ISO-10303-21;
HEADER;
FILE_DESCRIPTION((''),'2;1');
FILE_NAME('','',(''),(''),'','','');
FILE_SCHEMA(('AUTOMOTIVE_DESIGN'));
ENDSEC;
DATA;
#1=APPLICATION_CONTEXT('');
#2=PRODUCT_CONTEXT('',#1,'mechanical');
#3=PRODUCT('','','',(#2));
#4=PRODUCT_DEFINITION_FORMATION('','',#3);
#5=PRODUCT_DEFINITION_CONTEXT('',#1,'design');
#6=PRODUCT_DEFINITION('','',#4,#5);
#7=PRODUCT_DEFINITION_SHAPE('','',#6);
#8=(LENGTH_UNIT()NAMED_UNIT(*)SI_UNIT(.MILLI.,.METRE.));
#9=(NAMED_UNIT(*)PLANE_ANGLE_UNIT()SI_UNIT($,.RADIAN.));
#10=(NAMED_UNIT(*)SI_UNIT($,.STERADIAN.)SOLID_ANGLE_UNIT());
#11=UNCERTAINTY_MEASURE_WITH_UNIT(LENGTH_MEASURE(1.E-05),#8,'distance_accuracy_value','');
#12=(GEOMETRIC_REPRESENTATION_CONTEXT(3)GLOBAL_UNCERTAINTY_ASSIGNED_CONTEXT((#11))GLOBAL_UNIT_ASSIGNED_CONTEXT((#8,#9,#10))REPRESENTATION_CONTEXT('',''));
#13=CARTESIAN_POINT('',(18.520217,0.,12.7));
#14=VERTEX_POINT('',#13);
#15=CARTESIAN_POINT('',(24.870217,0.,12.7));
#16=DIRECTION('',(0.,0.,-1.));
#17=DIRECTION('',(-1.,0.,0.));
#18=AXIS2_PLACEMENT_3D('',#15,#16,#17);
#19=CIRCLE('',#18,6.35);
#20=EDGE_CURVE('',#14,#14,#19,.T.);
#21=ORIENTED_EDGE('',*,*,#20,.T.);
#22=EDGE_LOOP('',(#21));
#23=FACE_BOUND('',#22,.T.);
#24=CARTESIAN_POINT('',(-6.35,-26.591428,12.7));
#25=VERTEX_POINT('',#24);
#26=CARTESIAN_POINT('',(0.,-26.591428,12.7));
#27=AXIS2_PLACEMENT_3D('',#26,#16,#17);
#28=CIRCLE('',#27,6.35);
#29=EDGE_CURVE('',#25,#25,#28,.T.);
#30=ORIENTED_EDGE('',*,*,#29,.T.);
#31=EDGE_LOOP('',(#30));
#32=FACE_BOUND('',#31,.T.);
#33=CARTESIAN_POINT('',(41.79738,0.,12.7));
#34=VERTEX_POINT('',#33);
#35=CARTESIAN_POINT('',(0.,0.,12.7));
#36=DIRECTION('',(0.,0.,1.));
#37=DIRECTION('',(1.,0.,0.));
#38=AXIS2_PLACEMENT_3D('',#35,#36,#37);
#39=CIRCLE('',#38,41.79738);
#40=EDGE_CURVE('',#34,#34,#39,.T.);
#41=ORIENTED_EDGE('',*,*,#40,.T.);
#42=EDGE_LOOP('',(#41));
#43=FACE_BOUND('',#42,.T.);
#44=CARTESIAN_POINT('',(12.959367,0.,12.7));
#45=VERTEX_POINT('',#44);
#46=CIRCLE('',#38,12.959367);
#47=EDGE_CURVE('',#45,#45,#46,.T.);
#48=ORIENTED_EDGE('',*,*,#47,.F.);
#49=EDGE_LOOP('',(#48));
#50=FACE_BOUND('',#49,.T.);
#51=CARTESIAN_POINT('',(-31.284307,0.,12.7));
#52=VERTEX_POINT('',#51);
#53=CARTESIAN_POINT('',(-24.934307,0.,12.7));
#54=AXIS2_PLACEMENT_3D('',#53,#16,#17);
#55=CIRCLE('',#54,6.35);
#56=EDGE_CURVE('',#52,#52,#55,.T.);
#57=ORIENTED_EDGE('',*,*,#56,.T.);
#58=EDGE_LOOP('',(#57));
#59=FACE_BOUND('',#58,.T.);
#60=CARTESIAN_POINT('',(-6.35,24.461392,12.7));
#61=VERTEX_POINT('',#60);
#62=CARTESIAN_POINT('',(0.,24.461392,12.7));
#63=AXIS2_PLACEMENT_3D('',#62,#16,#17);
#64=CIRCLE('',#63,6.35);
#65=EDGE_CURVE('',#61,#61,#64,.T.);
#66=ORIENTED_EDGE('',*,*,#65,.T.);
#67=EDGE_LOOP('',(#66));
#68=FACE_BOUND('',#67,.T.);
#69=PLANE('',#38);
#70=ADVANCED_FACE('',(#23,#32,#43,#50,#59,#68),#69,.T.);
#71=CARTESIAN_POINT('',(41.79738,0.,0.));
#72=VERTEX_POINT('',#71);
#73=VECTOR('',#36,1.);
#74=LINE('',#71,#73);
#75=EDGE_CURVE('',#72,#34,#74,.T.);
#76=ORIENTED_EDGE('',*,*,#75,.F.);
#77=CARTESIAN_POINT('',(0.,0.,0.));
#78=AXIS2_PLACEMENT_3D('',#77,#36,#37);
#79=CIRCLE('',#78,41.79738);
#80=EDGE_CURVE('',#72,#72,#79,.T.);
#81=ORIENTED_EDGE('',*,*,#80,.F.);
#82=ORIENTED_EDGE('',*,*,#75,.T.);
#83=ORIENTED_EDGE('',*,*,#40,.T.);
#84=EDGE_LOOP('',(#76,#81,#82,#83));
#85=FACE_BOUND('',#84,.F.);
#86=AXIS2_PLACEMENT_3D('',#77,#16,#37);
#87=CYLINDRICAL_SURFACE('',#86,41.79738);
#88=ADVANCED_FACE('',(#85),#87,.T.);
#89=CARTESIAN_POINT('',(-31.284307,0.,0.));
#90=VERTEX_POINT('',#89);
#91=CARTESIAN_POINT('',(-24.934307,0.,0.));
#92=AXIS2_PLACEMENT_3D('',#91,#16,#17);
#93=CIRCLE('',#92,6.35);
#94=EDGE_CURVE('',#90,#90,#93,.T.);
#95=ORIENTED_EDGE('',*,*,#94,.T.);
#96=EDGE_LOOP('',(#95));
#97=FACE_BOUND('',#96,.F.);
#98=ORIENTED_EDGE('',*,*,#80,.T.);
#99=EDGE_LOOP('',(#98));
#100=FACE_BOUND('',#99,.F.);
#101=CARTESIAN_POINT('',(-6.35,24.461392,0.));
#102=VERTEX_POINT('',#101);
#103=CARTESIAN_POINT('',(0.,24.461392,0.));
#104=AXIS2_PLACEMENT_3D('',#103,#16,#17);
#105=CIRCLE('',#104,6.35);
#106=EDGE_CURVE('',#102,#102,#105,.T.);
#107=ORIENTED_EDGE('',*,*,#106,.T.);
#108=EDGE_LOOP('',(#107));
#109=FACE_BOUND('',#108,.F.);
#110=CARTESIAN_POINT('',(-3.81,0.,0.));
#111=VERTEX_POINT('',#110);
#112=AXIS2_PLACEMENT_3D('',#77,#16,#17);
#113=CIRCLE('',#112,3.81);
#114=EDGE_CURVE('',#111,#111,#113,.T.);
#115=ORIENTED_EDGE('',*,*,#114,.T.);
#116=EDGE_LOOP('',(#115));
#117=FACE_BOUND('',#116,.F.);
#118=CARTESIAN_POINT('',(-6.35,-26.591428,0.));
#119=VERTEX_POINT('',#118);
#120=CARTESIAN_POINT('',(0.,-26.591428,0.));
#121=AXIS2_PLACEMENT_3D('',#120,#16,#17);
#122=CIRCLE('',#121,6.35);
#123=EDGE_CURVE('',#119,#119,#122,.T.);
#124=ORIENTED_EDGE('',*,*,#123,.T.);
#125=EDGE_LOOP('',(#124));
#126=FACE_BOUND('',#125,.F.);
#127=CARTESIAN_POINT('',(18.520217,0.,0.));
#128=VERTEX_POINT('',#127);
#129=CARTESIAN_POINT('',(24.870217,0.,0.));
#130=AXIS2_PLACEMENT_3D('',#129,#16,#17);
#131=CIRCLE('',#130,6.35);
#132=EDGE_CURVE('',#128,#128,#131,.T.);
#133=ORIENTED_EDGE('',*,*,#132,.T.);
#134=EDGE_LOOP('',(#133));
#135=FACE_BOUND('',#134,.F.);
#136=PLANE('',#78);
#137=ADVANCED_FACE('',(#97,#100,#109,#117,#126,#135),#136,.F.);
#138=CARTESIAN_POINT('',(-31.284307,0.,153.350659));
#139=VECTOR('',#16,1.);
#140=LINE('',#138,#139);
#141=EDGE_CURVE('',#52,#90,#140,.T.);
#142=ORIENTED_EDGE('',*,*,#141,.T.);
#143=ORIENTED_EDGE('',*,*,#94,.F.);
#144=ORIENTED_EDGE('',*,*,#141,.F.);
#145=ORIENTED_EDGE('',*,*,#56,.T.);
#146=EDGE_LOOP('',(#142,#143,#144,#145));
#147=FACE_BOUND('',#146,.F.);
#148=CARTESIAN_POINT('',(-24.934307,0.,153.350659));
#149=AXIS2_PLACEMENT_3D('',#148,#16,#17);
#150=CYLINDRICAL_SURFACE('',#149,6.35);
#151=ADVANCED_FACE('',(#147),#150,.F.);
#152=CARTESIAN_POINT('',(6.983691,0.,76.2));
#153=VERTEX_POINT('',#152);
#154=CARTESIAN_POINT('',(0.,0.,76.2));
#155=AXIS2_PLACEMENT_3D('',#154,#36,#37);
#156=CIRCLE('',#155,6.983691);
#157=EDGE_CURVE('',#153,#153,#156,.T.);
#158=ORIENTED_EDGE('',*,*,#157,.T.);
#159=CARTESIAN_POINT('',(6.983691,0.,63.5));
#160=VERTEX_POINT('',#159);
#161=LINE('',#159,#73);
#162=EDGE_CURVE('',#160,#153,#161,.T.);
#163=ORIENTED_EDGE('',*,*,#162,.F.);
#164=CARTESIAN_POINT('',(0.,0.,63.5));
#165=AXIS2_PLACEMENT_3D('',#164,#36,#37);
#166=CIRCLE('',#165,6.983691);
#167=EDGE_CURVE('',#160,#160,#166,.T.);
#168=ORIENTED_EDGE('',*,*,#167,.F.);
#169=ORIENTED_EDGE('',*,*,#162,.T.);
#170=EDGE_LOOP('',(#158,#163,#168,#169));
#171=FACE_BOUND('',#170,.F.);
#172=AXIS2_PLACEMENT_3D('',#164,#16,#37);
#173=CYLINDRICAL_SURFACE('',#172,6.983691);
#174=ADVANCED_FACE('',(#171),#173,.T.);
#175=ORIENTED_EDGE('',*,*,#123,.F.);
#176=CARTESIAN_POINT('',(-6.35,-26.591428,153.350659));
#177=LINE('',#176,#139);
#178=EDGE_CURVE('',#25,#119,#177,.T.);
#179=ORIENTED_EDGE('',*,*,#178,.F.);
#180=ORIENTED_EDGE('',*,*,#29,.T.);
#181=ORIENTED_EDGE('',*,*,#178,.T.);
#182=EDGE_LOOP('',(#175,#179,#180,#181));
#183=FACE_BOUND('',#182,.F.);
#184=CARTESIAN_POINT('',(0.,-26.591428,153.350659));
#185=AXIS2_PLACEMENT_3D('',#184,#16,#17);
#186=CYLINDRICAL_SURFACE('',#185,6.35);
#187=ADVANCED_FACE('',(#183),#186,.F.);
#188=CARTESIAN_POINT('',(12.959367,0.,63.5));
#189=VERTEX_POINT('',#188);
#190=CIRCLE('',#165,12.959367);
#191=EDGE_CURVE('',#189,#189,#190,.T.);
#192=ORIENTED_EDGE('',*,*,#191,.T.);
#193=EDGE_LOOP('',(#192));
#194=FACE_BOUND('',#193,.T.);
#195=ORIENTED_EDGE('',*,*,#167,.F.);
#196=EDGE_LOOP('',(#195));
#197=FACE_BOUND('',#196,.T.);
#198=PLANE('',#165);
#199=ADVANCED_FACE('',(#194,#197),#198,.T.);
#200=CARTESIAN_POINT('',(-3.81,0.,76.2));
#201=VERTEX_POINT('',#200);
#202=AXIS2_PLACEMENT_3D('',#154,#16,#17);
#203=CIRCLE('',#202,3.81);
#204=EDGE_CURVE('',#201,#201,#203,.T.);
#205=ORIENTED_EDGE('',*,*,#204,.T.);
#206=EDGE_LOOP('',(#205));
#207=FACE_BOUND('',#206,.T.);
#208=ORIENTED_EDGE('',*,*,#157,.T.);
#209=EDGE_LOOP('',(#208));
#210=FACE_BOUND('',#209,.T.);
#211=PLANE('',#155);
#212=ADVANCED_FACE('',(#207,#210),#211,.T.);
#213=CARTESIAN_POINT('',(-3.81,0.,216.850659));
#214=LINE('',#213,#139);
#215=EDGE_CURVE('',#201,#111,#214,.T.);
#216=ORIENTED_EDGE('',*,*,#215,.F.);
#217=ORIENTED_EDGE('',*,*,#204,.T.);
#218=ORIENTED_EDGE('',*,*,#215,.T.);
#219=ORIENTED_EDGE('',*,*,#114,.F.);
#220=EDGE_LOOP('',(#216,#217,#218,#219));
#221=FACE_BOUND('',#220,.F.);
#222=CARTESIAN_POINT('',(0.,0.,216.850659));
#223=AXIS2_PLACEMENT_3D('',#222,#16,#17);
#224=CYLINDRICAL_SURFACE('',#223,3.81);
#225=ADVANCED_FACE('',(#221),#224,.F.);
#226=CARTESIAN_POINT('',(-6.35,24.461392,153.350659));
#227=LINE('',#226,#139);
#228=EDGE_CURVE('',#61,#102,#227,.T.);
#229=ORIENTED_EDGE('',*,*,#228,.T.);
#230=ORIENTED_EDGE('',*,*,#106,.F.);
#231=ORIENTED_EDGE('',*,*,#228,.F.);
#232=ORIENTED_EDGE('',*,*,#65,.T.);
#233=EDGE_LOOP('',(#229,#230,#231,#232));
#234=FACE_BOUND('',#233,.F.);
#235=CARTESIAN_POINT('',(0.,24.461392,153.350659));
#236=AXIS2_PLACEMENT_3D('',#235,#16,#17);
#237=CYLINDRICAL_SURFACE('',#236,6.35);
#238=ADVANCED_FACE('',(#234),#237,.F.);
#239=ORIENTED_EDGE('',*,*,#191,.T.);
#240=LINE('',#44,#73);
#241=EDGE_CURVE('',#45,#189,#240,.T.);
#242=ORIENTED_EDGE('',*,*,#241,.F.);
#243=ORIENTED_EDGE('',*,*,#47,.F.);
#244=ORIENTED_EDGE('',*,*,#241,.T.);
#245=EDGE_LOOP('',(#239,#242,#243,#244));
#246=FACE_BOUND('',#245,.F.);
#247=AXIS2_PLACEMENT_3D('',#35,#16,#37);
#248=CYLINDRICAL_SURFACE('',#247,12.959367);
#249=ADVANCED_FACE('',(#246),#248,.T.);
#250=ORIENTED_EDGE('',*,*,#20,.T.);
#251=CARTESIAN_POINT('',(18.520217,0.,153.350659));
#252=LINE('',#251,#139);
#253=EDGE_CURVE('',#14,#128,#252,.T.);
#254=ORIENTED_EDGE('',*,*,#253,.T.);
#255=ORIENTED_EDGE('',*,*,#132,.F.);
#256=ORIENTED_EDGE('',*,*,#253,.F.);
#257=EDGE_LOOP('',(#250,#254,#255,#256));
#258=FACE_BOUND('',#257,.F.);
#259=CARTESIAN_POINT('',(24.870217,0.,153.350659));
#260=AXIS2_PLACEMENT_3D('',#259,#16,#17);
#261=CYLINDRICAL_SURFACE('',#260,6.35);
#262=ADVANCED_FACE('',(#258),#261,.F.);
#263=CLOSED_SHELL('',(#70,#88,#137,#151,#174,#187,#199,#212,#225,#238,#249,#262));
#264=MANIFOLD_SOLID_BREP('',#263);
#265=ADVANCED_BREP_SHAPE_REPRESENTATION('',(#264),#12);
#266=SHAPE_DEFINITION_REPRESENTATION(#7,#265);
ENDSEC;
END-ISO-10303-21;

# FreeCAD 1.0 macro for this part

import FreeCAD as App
import Part
import Sketcher
from FreeCAD import Vector
Q = App.Units.Quantity

doc = App.newDocument("Part")
body = doc.addObject("PartDesign::Body", "Body")

# Sketch on XY plane
sketch1 = doc.addObject("Sketcher::SketchObject", "Sketch")
body.addObject(sketch1)
sketch1.AttachmentSupport = (doc.XY_Plane, [""])
sketch1.MapMode = "FlatFace"
sketch1.addGeometry(Part.Circle(Vector(0, 0, 0), Vector(0, 0, 1), 42), False)
sketch1.addConstraint(Sketcher.Constraint("Coincident", 0, 3, -1, 1))
sketch1.addConstraint(Sketcher.Constraint("Diameter", 0, Q("83.59476 mm")))
pad1 = doc.addObject("PartDesign::Pad", "Pad")
body.addObject(pad1)
pad1.Profile = sketch1
pad1.Length = Q("0.5 in")

# Sketch on XY plane
sketch2 = doc.addObject("Sketcher::SketchObject", "Sketch001")
body.addObject(sketch2)
sketch2.AttachmentSupport = (doc.XY_Plane, [""])
sketch2.MapMode = "FlatFace"
sketch2.AttachmentOffset = App.Placement(Vector(0, 0, 0.5 * 25.4), App.Rotation())
sketch2.addGeometry(Part.Circle(Vector(0, 0, 0), Vector(0, 0, 1), 13), False)
sketch2.addConstraint(Sketcher.Constraint("Coincident", 0, 3, -1, 1))
sketch2.addConstraint(Sketcher.Constraint("Diameter", 0, Q("25.918734 mm")))
pad2 = doc.addObject("PartDesign::Pad", "Pad001")
body.addObject(pad2)
pad2.Profile = sketch2
pad2.Length = Q("2 in")

# Sketch on XY plane
sketch3 = doc.addObject("Sketcher::SketchObject", "Sketch002")
body.addObject(sketch3)
sketch3.AttachmentSupport = (doc.XY_Plane, [""])
sketch3.MapMode = "FlatFace"
sketch3.AttachmentOffset = App.Placement(Vector(0, 0, 2.5 * 25.4), App.Rotation())
sketch3.addGeometry(Part.Circle(Vector(0, 0, 0), Vector(0, 0, 1), 7), False)
sketch3.addConstraint(Sketcher.Constraint("Coincident", 0, 3, -1, 1))
sketch3.addConstraint(Sketcher.Constraint("Diameter", 0, Q("13.967382 mm")))
pad3 = doc.addObject("PartDesign::Pad", "Pad002")
body.addObject(pad3)
pad3.Profile = sketch3
pad3.Length = Q("0.5 in")

# Sketch on XY plane
sketch4 = doc.addObject("Sketcher::SketchObject", "Sketch003")
body.addObject(sketch4)
sketch4.AttachmentSupport = (doc.XY_Plane, [""])
sketch4.MapMode = "FlatFace"
sketch4.AttachmentOffset = App.Placement(Vector(0, 0, 3 * 25.4), App.Rotation())
sketch4.addGeometry(Part.Circle(Vector(0, 0, 0), Vector(0, 0, 1), 3.8), False)
sketch4.addConstraint(Sketcher.Constraint("Coincident", 0, 3, -1, 1))
sketch4.addConstraint(Sketcher.Constraint("Diameter", 0, Q("0.3 in")))
doc.recompute()
hole = doc.addObject("PartDesign::Hole", "Hole")
body.addObject(hole)
hole.Profile = sketch4
hole.ThreadType = "None"
hole.Diameter = Q("0.3 in")
hole.DepthType = "ThroughAll"

# Sketch on XY plane
sketch5 = doc.addObject("Sketcher::SketchObject", "Sketch004")
body.addObject(sketch5)
sketch5.AttachmentSupport = (doc.XY_Plane, [""])
sketch5.MapMode = "FlatFace"
sketch5.AttachmentOffset = App.Placement(Vector(0, 0, 0.5 * 25.4), App.Rotation())
sketch5.addGeometry(Part.Circle(Vector(0, -27, 0), Vector(0, 0, 1), 6), False)
sketch5.addGeometry(Part.Circle(Vector(-25, 0, 0), Vector(0, 0, 1), 6), False)
sketch5.addGeometry(Part.Circle(Vector(25, 0, 0), Vector(0, 0, 1), 6), False)
sketch5.addGeometry(Part.Circle(Vector(0, 24, 0), Vector(0, 0, 1), 6), False)
sketch5.addConstraint(Sketcher.Constraint("Equal", 0, 1))
sketch5.addConstraint(Sketcher.Constraint("Equal", 1, 2))
sketch5.addConstraint(Sketcher.Constraint("Equal", 2, 3))
sketch5.addConstraint(Sketcher.Constraint("PointOnObject", 0, 3, -2))
sketch5.addConstraint(Sketcher.Constraint("PointOnObject", 1, 3, -1))
sketch5.addConstraint(Sketcher.Constraint("PointOnObject", 2, 3, -1))
sketch5.addConstraint(Sketcher.Constraint("PointOnObject", 3, 3, -2))
sketch5.addConstraint(Sketcher.Constraint("Diameter", 0, Q("0.5 in")))
sketch5.addConstraint(Sketcher.Constraint("DistanceY", 0, 3, -1, 1, Q("26.591428 mm")))
sketch5.addConstraint(Sketcher.Constraint("DistanceY", -1, 1, 3, 3, Q("24.461392 mm")))
sketch5.addConstraint(Sketcher.Constraint("DistanceX", 1, 3, -1, 1, Q("24.934307 mm")))
sketch5.addConstraint(Sketcher.Constraint("DistanceX", -1, 1, 2, 3, Q("24.870217 mm")))
doc.recompute()
hole2 = doc.addObject("PartDesign::Hole", "Hole001")
body.addObject(hole2)
hole2.Profile = sketch5
hole2.ThreadType = "None"
hole2.Diameter = Q("0.5 in")
hole2.DepthType = "ThroughAll"

doc.recompute()
